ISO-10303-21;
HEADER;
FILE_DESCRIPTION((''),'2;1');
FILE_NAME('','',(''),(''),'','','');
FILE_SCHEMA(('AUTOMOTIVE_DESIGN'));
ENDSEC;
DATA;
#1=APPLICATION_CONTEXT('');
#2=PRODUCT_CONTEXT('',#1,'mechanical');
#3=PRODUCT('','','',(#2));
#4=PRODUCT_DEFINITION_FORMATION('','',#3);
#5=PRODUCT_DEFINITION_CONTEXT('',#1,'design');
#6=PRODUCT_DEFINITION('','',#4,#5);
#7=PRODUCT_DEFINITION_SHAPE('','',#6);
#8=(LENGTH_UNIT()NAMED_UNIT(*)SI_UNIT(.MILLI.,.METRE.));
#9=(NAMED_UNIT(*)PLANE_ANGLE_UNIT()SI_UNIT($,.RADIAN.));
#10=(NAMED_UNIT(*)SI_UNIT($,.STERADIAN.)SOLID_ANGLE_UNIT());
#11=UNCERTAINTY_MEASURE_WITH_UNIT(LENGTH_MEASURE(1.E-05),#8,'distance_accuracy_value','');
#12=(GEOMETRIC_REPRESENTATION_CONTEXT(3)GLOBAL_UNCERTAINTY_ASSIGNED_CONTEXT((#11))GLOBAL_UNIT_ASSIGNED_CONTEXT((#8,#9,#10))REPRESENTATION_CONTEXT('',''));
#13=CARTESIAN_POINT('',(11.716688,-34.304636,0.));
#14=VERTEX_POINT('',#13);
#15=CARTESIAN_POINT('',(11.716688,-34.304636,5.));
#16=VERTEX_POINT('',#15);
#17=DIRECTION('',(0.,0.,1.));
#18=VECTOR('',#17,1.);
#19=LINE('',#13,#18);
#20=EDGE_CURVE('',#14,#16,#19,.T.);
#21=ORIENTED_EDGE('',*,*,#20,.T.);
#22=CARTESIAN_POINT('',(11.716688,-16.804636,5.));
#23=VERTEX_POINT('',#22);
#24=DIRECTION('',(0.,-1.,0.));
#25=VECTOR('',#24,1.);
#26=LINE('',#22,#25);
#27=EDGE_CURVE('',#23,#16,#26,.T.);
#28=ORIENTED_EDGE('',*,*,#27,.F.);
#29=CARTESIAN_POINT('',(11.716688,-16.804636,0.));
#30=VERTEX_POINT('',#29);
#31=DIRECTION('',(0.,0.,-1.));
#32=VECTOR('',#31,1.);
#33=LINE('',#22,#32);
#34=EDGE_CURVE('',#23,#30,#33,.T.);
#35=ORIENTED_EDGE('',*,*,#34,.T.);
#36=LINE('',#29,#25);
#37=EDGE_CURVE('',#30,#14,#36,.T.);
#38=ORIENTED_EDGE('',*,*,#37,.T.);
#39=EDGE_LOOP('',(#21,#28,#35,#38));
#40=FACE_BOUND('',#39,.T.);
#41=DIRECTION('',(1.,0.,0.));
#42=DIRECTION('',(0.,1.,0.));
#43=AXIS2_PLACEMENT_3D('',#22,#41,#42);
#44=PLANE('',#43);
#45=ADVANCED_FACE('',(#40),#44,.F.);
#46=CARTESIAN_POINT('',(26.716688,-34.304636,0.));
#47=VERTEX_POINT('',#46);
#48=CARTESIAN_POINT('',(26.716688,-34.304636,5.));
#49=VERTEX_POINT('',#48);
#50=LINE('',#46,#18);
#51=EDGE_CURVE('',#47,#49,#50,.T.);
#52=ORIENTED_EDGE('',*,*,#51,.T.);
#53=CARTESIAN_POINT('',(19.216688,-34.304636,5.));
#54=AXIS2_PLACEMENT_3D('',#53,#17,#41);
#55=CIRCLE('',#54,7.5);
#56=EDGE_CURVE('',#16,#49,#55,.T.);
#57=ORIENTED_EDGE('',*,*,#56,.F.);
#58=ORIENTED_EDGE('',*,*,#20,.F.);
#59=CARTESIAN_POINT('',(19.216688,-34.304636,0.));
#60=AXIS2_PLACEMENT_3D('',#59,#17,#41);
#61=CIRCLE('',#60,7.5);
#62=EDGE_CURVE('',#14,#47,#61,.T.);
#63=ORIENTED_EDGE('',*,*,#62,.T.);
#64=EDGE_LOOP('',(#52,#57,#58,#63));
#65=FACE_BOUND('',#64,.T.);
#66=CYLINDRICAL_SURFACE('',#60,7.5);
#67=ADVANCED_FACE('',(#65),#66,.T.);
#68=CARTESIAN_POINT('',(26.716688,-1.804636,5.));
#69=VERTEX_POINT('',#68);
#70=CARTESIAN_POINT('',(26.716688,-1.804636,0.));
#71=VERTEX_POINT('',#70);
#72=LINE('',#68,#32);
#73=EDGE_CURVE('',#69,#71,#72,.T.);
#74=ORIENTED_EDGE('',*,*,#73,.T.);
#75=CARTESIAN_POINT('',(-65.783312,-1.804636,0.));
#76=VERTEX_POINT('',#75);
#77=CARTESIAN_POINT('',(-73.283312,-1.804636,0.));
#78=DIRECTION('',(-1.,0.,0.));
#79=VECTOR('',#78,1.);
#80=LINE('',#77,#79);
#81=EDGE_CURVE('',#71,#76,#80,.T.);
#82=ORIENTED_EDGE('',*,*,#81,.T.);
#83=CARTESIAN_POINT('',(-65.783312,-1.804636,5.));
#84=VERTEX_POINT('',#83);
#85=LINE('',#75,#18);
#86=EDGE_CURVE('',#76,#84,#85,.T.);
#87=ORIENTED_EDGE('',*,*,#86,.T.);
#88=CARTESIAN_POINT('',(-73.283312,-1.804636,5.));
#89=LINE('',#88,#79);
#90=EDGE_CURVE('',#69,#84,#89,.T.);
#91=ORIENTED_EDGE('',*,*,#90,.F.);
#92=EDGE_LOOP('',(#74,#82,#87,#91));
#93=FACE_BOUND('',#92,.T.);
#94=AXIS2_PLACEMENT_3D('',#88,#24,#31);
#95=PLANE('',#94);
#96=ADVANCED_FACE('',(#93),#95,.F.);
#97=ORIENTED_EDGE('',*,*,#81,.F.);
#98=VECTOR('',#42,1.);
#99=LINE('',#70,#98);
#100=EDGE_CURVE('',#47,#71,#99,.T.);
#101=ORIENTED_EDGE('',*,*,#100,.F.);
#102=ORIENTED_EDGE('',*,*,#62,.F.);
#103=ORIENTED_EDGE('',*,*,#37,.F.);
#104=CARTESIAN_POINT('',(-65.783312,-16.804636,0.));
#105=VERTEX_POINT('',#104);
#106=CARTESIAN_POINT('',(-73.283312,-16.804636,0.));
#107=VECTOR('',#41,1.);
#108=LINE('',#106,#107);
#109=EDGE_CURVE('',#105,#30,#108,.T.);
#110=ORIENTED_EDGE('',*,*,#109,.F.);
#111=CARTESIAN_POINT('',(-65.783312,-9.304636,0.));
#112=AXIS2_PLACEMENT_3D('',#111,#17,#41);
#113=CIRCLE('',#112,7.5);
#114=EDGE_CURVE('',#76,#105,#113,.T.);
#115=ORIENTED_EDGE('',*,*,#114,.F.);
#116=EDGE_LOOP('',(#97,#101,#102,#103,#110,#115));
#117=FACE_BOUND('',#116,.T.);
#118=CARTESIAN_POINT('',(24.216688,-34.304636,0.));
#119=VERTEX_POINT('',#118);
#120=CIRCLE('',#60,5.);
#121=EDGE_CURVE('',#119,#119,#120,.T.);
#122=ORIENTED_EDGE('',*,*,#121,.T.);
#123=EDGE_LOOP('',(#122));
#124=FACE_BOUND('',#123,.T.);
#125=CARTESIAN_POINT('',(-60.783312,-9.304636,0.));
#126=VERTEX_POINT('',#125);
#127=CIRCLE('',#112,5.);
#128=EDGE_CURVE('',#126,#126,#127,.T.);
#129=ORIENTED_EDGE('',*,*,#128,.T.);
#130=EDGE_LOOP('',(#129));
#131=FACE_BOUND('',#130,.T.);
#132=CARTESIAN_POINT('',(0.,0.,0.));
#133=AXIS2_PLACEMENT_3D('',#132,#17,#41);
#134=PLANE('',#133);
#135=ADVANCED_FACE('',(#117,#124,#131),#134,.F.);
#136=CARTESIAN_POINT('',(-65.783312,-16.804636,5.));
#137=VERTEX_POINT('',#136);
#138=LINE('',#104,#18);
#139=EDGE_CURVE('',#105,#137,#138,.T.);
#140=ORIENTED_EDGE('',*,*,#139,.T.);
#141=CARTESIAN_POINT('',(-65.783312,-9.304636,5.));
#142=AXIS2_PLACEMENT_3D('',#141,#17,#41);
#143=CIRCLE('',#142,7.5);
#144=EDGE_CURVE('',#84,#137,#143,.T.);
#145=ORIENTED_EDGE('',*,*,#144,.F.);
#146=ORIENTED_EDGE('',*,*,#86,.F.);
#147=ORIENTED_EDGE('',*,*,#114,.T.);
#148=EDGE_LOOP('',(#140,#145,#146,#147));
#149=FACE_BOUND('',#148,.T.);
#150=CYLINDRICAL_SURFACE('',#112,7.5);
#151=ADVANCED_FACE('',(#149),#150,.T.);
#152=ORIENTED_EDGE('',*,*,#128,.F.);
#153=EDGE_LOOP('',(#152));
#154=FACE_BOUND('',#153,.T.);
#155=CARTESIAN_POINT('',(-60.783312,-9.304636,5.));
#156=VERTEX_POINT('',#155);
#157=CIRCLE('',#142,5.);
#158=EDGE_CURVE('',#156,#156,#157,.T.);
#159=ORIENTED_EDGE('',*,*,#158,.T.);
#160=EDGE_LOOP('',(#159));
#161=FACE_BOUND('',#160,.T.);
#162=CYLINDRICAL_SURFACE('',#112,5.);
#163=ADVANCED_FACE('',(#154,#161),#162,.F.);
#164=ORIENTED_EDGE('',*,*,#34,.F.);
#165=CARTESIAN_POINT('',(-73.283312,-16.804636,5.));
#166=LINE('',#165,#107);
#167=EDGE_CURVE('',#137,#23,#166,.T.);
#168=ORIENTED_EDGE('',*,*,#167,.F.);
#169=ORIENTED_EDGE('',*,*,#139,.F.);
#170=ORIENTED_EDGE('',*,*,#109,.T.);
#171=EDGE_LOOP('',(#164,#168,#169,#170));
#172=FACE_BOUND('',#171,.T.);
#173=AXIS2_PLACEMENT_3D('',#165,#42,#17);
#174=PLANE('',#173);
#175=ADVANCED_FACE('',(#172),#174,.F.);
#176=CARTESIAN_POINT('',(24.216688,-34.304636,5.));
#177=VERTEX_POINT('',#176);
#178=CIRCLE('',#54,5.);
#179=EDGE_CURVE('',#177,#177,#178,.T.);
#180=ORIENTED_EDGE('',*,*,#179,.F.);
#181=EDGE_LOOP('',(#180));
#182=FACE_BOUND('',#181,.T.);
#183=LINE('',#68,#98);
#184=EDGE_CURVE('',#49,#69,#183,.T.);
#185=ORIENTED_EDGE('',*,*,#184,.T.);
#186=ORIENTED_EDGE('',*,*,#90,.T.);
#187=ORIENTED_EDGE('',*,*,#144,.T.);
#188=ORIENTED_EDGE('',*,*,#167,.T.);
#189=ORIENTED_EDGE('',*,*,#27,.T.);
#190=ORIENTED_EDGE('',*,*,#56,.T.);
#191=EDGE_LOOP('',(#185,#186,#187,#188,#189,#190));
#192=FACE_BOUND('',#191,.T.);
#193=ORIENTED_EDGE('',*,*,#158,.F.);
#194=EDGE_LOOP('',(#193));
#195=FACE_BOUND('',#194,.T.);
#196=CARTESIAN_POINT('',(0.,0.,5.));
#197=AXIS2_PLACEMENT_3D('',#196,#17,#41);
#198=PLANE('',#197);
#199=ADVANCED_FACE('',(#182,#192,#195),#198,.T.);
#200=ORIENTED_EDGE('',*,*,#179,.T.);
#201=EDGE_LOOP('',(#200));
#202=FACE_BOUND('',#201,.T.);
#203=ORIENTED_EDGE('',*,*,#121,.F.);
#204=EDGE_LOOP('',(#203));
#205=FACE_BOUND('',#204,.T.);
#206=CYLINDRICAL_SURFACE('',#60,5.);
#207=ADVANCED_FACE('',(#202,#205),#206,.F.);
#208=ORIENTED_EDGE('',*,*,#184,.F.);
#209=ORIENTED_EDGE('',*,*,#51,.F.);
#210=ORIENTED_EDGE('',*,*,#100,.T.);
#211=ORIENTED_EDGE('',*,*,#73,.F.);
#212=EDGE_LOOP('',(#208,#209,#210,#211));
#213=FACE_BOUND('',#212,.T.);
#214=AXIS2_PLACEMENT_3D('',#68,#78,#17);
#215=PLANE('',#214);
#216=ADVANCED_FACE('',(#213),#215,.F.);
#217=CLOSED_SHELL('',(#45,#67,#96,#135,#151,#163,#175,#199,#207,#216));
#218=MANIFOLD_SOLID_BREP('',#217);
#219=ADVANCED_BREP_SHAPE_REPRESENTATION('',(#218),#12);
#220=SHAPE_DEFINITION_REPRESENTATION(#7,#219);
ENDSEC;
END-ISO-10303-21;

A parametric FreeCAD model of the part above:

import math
import FreeCAD as App
import Part
import Sketcher
Q = App.Units.Quantity


def add_polygon(sketch, points):
    """Adds a closed chain of lines whose ends are joined by coincident constraints."""
    first, n = sketch.GeometryCount, len(points)
    for a, b in zip(points, points[1:] + points[:1]):
        sketch.addGeometry(Part.LineSegment(App.Vector(*a, 0), App.Vector(*b, 0)), False)
    for i in range(n):
        sketch.addConstraint(Sketcher.Constraint("Coincident", first + i, 2, first + (i + 1) % n, 1))

doc = App.newDocument("Part")
body = doc.addObject("PartDesign::Body", "Body")

# Sketch on XY plane
sketch1 = doc.addObject("Sketcher::SketchObject", "Sketch")
body.addObject(sketch1)
sketch1.AttachmentSupport = (doc.XY_Plane, [""])
sketch1.MapMode = "FlatFace"
add_polygon(sketch1, [(27, -2), (-73, -2), (-73, -17), (12, -17), (12, -42), (27, -42)])  # lines 0-5
sketch1.addConstraint(Sketcher.Constraint("Horizontal", 0))
sketch1.addConstraint(Sketcher.Constraint("Vertical", 1))
sketch1.addConstraint(Sketcher.Constraint("Horizontal", 2))
sketch1.addConstraint(Sketcher.Constraint("Vertical", 3))
sketch1.addConstraint(Sketcher.Constraint("Horizontal", 4))
sketch1.addConstraint(Sketcher.Constraint("Vertical", 5))
sketch1.addConstraint(Sketcher.Constraint("Equal", 4, 1))
sketch1.addConstraint(Sketcher.Constraint("DistanceX", 0, 2, 0, 1, Q("100 mm")))
sketch1.addConstraint(Sketcher.Constraint("DistanceX", 2, 1, 2, 2, Q("85 mm")))
sketch1.addConstraint(Sketcher.Constraint("DistanceY", 3, 2, 3, 1, Q("25 mm")))
sketch1.addConstraint(Sketcher.Constraint("DistanceX", 0, 2, -1, 1, Q("73.283312 mm")))
sketch1.addConstraint(Sketcher.Constraint("DistanceY", 0, 2, -1, 1, Q("1.804636 mm")))
pad1 = doc.addObject("PartDesign::Pad", "Pad")
body.addObject(pad1)
pad1.Profile = sketch1
pad1.Length = 5

# Sketch on XY plane
sketch2 = doc.addObject("Sketcher::SketchObject", "Sketch001")
body.addObject(sketch2)
sketch2.AttachmentSupport = (doc.XY_Plane, [""])
sketch2.MapMode = "FlatFace"
sketch2.AttachmentOffset = App.Placement(App.Vector(0, 0, 5), App.Rotation())
sketch2.addGeometry(Part.Circle(App.Vector(19, -34, 0), App.Vector(0, 0, 1), 5), False)
sketch2.addGeometry(Part.ArcOfCircle(Part.Circle(App.Vector(19, -34, 0), App.Vector(0, 0, 1), 8), math.radians(-180), math.radians(-90)), False)
sketch2.addGeometry(Part.LineSegment(App.Vector(12, -34, 0), App.Vector(12, -42, 0)), False)
sketch2.addGeometry(Part.LineSegment(App.Vector(12, -42, 0), App.Vector(19, -42, 0)), False)
sketch2.addGeometry(Part.LineSegment(App.Vector(27, -42, 0), App.Vector(27, -34, 0)), False)
sketch2.addGeometry(Part.ArcOfCircle(Part.Circle(App.Vector(19, -34, 0), App.Vector(0, 0, 1), 8), math.radians(-90), math.radians(0)), False)
sketch2.addGeometry(Part.LineSegment(App.Vector(19, -42, 0), App.Vector(27, -42, 0)), False)
sketch2.addGeometry(Part.Circle(App.Vector(-66, -9, 0), App.Vector(0, 0, 1), 5), False)
sketch2.addGeometry(Part.LineSegment(App.Vector(-66, -2, 0), App.Vector(-73, -2, 0)), False)
sketch2.addGeometry(Part.LineSegment(App.Vector(-73, -2, 0), App.Vector(-73, -9, 0)), False)
sketch2.addGeometry(Part.ArcOfCircle(Part.Circle(App.Vector(-66, -9, 0), App.Vector(0, 0, 1), 7), math.radians(90), math.radians(180)), False)
sketch2.addGeometry(Part.ArcOfCircle(Part.Circle(App.Vector(-66, -9, 0), App.Vector(0, 0, 1), 8), math.radians(-180), math.radians(-90)), False)
sketch2.addGeometry(Part.LineSegment(App.Vector(-73, -9, 0), App.Vector(-73, -17, 0)), False)
sketch2.addGeometry(Part.LineSegment(App.Vector(-73, -17, 0), App.Vector(-66, -17, 0)), False)
sketch2.addConstraint(Sketcher.Constraint("Tangent", 1, 1, 2, 1))
sketch2.addConstraint(Sketcher.Constraint("Coincident", 2, 2, 3, 1))
sketch2.addConstraint(Sketcher.Constraint("Tangent", 3, 2, 1, 2))
sketch2.addConstraint(Sketcher.Constraint("Tangent", 4, 2, 5, 2))
sketch2.addConstraint(Sketcher.Constraint("Tangent", 5, 1, 6, 1))
sketch2.addConstraint(Sketcher.Constraint("Coincident", 6, 2, 4, 1))
sketch2.addConstraint(Sketcher.Constraint("Coincident", 8, 2, 9, 1))
sketch2.addConstraint(Sketcher.Constraint("Tangent", 9, 2, 10, 2))
sketch2.addConstraint(Sketcher.Constraint("Tangent", 10, 1, 8, 1))
sketch2.addConstraint(Sketcher.Constraint("Tangent", 11, 1, 12, 1))
sketch2.addConstraint(Sketcher.Constraint("Coincident", 12, 2, 13, 1))
sketch2.addConstraint(Sketcher.Constraint("Tangent", 13, 2, 11, 2))
sketch2.addConstraint(Sketcher.Constraint("Vertical", 2))
sketch2.addConstraint(Sketcher.Constraint("Horizontal", 3))
sketch2.addConstraint(Sketcher.Constraint("Vertical", 4))
sketch2.addConstraint(Sketcher.Constraint("Horizontal", 6))
sketch2.addConstraint(Sketcher.Constraint("Horizontal", 8))
sketch2.addConstraint(Sketcher.Constraint("Vertical", 9))
sketch2.addConstraint(Sketcher.Constraint("Vertical", 12))
sketch2.addConstraint(Sketcher.Constraint("Horizontal", 13))
sketch2.addConstraint(Sketcher.Constraint("Coincident", 1, 3, 0, 3))
sketch2.addConstraint(Sketcher.Constraint("Coincident", 5, 3, 0, 3))
sketch2.addConstraint(Sketcher.Constraint("Coincident", 10, 3, 7, 3))
sketch2.addConstraint(Sketcher.Constraint("Coincident", 11, 3, 7, 3))
sketch2.addConstraint(Sketcher.Constraint("Equal", 1, 5))
sketch2.addConstraint(Sketcher.Constraint("Equal", 0, 7))
sketch2.addConstraint(Sketcher.Constraint("Equal", 5, 10))
sketch2.addConstraint(Sketcher.Constraint("Equal", 10, 11))
sketch2.addConstraint(Sketcher.Constraint("Diameter", 0, Q("10 mm")))
sketch2.addConstraint(Sketcher.Constraint("Radius", 1, Q("7.5 mm")))
sketch2.addConstraint(Sketcher.Constraint("DistanceX", 7, 3, 5, 3, Q("85 mm")))
sketch2.addConstraint(Sketcher.Constraint("DistanceY", 5, 3, 7, 3, Q("25 mm")))
sketch2.addConstraint(Sketcher.Constraint("DistanceX", -1, 1, 0, 3, Q("19.216688 mm")))
sketch2.addConstraint(Sketcher.Constraint("DistanceY", 0, 3, -1, 1, Q("34.304636 mm")))
pocket1 = doc.addObject("PartDesign::Pocket", "Pocket")
body.addObject(pocket1)
pocket1.Profile = sketch2
pocket1.Length = 5

doc.recompute()
